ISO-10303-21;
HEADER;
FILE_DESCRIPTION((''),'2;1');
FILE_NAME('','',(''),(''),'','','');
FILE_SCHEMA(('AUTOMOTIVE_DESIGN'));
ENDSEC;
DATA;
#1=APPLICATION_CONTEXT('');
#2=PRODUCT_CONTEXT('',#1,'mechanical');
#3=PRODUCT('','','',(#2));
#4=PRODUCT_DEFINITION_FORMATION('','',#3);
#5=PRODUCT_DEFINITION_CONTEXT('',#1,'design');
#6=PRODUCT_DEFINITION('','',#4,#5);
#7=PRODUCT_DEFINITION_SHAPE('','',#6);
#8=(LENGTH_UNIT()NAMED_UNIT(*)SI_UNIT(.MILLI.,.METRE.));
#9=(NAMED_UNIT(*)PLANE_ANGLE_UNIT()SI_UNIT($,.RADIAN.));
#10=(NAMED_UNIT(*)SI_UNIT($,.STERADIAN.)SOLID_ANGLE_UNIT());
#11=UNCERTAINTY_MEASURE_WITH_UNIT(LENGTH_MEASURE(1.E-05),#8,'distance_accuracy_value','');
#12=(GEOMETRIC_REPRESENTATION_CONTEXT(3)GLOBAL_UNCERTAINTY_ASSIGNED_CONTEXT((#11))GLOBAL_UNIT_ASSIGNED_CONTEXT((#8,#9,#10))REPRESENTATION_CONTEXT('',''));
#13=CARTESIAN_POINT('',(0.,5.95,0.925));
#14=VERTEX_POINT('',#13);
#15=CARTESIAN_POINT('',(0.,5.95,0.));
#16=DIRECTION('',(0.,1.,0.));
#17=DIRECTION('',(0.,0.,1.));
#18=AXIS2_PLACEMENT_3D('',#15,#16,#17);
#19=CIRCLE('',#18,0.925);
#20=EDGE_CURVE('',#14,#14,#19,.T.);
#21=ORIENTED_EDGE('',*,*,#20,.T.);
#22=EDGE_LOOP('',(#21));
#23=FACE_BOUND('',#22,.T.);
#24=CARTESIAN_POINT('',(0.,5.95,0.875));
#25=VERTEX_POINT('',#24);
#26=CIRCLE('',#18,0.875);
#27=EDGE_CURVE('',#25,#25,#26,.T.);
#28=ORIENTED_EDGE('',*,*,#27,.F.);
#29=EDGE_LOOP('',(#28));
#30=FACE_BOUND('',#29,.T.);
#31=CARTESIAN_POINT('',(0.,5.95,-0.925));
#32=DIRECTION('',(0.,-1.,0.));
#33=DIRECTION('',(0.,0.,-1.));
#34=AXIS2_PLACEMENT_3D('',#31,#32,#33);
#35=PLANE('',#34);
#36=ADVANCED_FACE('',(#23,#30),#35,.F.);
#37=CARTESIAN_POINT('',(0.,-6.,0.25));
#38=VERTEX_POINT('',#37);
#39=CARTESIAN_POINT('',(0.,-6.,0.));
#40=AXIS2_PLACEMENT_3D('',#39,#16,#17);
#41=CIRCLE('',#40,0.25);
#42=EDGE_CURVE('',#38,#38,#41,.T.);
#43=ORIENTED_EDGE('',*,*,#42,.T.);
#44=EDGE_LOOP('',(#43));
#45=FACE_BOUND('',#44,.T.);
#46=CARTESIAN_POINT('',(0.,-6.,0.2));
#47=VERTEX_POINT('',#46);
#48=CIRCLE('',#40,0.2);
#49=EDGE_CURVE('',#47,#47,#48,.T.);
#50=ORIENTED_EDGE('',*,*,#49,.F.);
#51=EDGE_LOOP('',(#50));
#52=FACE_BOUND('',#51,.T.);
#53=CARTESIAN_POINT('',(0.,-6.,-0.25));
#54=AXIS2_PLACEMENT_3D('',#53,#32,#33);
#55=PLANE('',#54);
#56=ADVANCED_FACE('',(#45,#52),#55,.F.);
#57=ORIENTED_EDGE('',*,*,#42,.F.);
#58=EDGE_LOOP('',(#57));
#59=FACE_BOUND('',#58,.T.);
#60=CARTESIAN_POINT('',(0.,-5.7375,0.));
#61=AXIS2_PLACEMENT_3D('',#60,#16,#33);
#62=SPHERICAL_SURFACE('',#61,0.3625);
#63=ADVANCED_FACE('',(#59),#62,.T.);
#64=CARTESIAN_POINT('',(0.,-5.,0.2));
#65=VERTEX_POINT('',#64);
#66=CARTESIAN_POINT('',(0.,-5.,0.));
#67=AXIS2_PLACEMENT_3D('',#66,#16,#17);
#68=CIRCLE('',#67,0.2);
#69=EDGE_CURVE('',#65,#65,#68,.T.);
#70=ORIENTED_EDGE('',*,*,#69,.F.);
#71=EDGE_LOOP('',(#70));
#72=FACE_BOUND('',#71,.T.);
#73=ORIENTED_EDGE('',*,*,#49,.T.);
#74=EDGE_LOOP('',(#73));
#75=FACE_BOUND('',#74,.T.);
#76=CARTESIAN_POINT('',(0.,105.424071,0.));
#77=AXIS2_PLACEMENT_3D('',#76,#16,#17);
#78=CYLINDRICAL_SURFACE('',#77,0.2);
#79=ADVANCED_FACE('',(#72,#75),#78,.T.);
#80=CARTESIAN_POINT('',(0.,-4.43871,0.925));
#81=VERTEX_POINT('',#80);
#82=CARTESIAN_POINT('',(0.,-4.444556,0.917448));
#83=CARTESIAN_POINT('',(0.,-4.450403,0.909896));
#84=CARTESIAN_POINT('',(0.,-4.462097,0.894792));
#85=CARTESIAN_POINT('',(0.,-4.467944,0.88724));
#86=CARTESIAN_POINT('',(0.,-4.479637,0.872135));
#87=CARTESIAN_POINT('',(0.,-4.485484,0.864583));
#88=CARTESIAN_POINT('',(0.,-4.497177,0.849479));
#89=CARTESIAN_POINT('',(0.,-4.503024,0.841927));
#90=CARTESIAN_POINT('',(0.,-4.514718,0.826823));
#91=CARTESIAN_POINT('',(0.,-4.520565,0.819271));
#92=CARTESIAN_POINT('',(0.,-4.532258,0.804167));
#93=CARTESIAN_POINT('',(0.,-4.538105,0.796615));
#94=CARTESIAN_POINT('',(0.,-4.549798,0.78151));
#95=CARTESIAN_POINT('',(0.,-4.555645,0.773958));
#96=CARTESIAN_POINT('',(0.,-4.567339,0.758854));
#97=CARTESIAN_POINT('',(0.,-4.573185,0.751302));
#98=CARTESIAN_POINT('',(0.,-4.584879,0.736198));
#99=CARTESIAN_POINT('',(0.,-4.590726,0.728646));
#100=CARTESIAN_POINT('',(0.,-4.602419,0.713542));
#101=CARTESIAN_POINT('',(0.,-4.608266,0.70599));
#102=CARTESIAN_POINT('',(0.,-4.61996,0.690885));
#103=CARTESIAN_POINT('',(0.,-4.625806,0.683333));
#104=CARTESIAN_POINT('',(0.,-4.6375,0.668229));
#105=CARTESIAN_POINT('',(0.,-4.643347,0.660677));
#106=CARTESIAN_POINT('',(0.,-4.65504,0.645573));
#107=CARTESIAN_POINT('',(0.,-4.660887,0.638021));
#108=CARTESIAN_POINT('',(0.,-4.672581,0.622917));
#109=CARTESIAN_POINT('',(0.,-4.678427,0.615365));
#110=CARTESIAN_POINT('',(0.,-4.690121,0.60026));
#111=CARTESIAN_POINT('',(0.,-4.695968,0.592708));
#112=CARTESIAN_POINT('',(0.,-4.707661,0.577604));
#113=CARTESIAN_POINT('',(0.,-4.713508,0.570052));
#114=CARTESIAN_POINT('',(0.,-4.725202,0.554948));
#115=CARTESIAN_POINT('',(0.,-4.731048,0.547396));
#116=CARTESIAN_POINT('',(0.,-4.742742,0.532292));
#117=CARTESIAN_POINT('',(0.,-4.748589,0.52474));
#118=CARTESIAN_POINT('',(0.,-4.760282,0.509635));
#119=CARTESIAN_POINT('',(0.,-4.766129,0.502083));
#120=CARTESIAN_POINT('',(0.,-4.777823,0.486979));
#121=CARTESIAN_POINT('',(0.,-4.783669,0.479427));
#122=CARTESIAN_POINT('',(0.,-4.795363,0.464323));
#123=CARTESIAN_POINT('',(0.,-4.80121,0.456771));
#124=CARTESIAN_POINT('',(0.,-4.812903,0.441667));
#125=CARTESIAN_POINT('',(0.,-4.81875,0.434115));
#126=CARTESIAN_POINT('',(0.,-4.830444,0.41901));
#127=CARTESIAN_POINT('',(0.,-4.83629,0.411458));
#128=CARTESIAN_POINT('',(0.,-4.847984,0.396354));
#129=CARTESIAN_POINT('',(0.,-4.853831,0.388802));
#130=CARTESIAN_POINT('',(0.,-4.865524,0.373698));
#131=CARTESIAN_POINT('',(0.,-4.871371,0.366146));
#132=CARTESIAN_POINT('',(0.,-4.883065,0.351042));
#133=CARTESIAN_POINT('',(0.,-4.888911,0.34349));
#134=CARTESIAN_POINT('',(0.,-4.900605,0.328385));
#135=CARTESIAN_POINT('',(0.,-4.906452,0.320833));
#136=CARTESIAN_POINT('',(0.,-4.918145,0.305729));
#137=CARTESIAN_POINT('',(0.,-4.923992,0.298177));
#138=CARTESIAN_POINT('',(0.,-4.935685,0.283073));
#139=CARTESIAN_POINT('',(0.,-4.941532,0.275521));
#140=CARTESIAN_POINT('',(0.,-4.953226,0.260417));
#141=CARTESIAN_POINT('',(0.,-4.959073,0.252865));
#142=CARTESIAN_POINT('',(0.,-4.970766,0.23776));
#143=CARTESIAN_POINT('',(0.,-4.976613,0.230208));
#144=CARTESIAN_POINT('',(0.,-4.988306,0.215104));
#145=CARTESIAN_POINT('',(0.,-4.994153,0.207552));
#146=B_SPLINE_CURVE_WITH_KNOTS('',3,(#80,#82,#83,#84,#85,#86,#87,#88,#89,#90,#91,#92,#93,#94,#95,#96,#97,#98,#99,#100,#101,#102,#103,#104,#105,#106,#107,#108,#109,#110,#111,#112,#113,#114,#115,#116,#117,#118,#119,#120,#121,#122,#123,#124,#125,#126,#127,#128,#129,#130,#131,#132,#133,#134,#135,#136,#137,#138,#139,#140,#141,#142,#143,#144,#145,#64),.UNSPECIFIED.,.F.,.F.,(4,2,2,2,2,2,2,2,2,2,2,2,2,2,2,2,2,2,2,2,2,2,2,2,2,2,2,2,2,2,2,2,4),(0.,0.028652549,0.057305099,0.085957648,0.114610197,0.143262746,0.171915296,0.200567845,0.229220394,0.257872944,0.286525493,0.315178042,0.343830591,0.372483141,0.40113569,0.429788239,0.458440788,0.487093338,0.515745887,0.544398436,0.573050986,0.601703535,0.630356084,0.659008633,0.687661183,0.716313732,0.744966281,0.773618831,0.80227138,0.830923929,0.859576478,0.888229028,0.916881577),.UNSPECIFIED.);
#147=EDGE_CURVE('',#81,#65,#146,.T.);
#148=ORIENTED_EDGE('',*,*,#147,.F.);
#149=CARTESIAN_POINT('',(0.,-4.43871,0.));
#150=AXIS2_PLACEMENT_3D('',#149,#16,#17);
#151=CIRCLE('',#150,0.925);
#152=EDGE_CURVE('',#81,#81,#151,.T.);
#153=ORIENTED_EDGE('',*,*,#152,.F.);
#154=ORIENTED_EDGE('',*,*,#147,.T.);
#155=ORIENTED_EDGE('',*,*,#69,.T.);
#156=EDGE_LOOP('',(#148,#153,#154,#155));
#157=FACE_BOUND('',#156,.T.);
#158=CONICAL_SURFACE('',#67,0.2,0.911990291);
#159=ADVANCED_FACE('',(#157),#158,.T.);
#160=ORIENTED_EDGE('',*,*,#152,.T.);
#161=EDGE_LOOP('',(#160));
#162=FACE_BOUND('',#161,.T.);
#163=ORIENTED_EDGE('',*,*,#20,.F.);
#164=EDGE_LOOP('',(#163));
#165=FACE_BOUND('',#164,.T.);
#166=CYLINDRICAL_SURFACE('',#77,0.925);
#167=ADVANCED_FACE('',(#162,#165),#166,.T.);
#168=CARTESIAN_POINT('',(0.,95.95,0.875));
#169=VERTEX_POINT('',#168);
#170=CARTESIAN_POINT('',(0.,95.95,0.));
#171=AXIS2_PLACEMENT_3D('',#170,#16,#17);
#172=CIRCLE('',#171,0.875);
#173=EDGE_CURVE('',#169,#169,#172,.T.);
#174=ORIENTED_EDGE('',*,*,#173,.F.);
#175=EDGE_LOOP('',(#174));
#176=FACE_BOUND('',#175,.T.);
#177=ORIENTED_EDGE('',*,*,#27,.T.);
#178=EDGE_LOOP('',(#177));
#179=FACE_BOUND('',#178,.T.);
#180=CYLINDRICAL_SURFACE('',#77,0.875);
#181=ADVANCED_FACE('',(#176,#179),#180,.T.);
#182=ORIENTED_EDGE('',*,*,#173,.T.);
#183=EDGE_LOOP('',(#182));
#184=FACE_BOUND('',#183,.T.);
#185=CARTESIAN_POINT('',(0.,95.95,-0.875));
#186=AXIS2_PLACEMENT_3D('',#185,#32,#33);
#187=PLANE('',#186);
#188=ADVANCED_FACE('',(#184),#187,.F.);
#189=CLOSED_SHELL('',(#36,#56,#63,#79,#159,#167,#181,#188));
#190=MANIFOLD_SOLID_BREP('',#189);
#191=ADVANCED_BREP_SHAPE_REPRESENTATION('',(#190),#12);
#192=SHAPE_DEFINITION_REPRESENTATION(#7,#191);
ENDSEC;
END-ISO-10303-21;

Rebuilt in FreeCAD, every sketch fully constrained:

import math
import FreeCAD as App
import Part
import Sketcher

V = App.Vector
Q = App.Units.Quantity

doc = App.newDocument("Part")
body = doc.addObject("PartDesign::Body", "Body")

# Sketch on YZ plane
sketch1 = body.newObject("Sketcher::SketchObject", "Sketch")
sketch1.AttachmentSupport = (doc.getObject("YZ_Plane"), [""])
sketch1.MapMode = "FlatFace"
sketch1.addGeometry([
    Part.LineSegment(V(-4.44, -0.93, 0), V(5.95, -0.93, 0)),  # 0
    Part.LineSegment(V(5.95, -0.93, 0), V(5.95, -0.88, 0)),  # 1
    Part.LineSegment(V(5.95, -0.88, 0), V(95.95, -0.88, 0)),  # 2
    Part.LineSegment(V(95.95, -0.88, 0), V(95.95, 0, 0)),  # 3
    Part.LineSegment(V(95.95, 0, 0), V(-6.1, 0, 0)),  # 4
    Part.ArcOfCircle(Part.Circle(V(-5.74, 0, 0), V(0, 0, 1), 0.36), math.radians(-180), math.radians(-136)),  # 5
    Part.LineSegment(V(-6, -0.25, 0), V(-6, -0.2, 0)),  # 6
    Part.LineSegment(V(-6, -0.2, 0), V(-5, -0.2, 0)),  # 7
    Part.LineSegment(V(-5, -0.2, 0), V(-4.44, -0.93, 0)),  # 8
], False)
sketch1.addConstraint([
    Sketcher.Constraint("Coincident", 0, 2, 1, 1),
    Sketcher.Constraint("Coincident", 1, 2, 2, 1),
    Sketcher.Constraint("Coincident", 2, 2, 3, 1),
    Sketcher.Constraint("Coincident", 3, 2, 4, 1),
    Sketcher.Constraint("Coincident", 4, 2, 5, 1),
    Sketcher.Constraint("Coincident", 5, 2, 6, 1),
    Sketcher.Constraint("Coincident", 6, 2, 7, 1),
    Sketcher.Constraint("Coincident", 7, 2, 8, 1),
    Sketcher.Constraint("Coincident", 8, 2, 0, 1),
    Sketcher.Constraint("Horizontal", 0),
    Sketcher.Constraint("Vertical", 1),
    Sketcher.Constraint("Horizontal", 2),
    Sketcher.Constraint("Vertical", 3),
    Sketcher.Constraint("Horizontal", 4),
    Sketcher.Constraint("Vertical", 6),
    Sketcher.Constraint("Horizontal", 7),
    Sketcher.Constraint("PointOnObject", 5, 3, -1),
    Sketcher.Constraint("PointOnObject", 3, 2, -1),
    Sketcher.Constraint("Equal", 1, 6),
    Sketcher.Constraint("DistanceX", 2, 1, 2, 2, Q("90 mm")),
    Sketcher.Constraint("DistanceX", 7, 1, 7, 2, Q("1 mm")),
    Sketcher.Constraint("DistanceX", 5, 2, -1, 1, Q("6 mm")),
    Sketcher.Constraint("DistanceX", 4, 2, 4, 1, Q("102.05 mm")),
    Sketcher.Constraint("DistanceY", 1, 1, 1, 2, Q("0.05 mm")),
    Sketcher.Constraint("DistanceX", 4, 2, -1, 1, Q("6.1 mm")),
    Sketcher.Constraint("DistanceY", 6, 2, -1, 1, Q("0.2 mm")),
    Sketcher.Constraint("DistanceY", 3, 1, 3, 2, Q("0.875 mm")),
    Sketcher.Constraint("DistanceX", 0, 1, 0, 2, Q("10.38871 mm")),
])
revolution = body.newObject("PartDesign::Revolution", "Revolution")
revolution.Profile = sketch1
revolution.ReferenceAxis = (sketch1, ["H_Axis"])
revolution.Angle = 360

doc.recompute()
